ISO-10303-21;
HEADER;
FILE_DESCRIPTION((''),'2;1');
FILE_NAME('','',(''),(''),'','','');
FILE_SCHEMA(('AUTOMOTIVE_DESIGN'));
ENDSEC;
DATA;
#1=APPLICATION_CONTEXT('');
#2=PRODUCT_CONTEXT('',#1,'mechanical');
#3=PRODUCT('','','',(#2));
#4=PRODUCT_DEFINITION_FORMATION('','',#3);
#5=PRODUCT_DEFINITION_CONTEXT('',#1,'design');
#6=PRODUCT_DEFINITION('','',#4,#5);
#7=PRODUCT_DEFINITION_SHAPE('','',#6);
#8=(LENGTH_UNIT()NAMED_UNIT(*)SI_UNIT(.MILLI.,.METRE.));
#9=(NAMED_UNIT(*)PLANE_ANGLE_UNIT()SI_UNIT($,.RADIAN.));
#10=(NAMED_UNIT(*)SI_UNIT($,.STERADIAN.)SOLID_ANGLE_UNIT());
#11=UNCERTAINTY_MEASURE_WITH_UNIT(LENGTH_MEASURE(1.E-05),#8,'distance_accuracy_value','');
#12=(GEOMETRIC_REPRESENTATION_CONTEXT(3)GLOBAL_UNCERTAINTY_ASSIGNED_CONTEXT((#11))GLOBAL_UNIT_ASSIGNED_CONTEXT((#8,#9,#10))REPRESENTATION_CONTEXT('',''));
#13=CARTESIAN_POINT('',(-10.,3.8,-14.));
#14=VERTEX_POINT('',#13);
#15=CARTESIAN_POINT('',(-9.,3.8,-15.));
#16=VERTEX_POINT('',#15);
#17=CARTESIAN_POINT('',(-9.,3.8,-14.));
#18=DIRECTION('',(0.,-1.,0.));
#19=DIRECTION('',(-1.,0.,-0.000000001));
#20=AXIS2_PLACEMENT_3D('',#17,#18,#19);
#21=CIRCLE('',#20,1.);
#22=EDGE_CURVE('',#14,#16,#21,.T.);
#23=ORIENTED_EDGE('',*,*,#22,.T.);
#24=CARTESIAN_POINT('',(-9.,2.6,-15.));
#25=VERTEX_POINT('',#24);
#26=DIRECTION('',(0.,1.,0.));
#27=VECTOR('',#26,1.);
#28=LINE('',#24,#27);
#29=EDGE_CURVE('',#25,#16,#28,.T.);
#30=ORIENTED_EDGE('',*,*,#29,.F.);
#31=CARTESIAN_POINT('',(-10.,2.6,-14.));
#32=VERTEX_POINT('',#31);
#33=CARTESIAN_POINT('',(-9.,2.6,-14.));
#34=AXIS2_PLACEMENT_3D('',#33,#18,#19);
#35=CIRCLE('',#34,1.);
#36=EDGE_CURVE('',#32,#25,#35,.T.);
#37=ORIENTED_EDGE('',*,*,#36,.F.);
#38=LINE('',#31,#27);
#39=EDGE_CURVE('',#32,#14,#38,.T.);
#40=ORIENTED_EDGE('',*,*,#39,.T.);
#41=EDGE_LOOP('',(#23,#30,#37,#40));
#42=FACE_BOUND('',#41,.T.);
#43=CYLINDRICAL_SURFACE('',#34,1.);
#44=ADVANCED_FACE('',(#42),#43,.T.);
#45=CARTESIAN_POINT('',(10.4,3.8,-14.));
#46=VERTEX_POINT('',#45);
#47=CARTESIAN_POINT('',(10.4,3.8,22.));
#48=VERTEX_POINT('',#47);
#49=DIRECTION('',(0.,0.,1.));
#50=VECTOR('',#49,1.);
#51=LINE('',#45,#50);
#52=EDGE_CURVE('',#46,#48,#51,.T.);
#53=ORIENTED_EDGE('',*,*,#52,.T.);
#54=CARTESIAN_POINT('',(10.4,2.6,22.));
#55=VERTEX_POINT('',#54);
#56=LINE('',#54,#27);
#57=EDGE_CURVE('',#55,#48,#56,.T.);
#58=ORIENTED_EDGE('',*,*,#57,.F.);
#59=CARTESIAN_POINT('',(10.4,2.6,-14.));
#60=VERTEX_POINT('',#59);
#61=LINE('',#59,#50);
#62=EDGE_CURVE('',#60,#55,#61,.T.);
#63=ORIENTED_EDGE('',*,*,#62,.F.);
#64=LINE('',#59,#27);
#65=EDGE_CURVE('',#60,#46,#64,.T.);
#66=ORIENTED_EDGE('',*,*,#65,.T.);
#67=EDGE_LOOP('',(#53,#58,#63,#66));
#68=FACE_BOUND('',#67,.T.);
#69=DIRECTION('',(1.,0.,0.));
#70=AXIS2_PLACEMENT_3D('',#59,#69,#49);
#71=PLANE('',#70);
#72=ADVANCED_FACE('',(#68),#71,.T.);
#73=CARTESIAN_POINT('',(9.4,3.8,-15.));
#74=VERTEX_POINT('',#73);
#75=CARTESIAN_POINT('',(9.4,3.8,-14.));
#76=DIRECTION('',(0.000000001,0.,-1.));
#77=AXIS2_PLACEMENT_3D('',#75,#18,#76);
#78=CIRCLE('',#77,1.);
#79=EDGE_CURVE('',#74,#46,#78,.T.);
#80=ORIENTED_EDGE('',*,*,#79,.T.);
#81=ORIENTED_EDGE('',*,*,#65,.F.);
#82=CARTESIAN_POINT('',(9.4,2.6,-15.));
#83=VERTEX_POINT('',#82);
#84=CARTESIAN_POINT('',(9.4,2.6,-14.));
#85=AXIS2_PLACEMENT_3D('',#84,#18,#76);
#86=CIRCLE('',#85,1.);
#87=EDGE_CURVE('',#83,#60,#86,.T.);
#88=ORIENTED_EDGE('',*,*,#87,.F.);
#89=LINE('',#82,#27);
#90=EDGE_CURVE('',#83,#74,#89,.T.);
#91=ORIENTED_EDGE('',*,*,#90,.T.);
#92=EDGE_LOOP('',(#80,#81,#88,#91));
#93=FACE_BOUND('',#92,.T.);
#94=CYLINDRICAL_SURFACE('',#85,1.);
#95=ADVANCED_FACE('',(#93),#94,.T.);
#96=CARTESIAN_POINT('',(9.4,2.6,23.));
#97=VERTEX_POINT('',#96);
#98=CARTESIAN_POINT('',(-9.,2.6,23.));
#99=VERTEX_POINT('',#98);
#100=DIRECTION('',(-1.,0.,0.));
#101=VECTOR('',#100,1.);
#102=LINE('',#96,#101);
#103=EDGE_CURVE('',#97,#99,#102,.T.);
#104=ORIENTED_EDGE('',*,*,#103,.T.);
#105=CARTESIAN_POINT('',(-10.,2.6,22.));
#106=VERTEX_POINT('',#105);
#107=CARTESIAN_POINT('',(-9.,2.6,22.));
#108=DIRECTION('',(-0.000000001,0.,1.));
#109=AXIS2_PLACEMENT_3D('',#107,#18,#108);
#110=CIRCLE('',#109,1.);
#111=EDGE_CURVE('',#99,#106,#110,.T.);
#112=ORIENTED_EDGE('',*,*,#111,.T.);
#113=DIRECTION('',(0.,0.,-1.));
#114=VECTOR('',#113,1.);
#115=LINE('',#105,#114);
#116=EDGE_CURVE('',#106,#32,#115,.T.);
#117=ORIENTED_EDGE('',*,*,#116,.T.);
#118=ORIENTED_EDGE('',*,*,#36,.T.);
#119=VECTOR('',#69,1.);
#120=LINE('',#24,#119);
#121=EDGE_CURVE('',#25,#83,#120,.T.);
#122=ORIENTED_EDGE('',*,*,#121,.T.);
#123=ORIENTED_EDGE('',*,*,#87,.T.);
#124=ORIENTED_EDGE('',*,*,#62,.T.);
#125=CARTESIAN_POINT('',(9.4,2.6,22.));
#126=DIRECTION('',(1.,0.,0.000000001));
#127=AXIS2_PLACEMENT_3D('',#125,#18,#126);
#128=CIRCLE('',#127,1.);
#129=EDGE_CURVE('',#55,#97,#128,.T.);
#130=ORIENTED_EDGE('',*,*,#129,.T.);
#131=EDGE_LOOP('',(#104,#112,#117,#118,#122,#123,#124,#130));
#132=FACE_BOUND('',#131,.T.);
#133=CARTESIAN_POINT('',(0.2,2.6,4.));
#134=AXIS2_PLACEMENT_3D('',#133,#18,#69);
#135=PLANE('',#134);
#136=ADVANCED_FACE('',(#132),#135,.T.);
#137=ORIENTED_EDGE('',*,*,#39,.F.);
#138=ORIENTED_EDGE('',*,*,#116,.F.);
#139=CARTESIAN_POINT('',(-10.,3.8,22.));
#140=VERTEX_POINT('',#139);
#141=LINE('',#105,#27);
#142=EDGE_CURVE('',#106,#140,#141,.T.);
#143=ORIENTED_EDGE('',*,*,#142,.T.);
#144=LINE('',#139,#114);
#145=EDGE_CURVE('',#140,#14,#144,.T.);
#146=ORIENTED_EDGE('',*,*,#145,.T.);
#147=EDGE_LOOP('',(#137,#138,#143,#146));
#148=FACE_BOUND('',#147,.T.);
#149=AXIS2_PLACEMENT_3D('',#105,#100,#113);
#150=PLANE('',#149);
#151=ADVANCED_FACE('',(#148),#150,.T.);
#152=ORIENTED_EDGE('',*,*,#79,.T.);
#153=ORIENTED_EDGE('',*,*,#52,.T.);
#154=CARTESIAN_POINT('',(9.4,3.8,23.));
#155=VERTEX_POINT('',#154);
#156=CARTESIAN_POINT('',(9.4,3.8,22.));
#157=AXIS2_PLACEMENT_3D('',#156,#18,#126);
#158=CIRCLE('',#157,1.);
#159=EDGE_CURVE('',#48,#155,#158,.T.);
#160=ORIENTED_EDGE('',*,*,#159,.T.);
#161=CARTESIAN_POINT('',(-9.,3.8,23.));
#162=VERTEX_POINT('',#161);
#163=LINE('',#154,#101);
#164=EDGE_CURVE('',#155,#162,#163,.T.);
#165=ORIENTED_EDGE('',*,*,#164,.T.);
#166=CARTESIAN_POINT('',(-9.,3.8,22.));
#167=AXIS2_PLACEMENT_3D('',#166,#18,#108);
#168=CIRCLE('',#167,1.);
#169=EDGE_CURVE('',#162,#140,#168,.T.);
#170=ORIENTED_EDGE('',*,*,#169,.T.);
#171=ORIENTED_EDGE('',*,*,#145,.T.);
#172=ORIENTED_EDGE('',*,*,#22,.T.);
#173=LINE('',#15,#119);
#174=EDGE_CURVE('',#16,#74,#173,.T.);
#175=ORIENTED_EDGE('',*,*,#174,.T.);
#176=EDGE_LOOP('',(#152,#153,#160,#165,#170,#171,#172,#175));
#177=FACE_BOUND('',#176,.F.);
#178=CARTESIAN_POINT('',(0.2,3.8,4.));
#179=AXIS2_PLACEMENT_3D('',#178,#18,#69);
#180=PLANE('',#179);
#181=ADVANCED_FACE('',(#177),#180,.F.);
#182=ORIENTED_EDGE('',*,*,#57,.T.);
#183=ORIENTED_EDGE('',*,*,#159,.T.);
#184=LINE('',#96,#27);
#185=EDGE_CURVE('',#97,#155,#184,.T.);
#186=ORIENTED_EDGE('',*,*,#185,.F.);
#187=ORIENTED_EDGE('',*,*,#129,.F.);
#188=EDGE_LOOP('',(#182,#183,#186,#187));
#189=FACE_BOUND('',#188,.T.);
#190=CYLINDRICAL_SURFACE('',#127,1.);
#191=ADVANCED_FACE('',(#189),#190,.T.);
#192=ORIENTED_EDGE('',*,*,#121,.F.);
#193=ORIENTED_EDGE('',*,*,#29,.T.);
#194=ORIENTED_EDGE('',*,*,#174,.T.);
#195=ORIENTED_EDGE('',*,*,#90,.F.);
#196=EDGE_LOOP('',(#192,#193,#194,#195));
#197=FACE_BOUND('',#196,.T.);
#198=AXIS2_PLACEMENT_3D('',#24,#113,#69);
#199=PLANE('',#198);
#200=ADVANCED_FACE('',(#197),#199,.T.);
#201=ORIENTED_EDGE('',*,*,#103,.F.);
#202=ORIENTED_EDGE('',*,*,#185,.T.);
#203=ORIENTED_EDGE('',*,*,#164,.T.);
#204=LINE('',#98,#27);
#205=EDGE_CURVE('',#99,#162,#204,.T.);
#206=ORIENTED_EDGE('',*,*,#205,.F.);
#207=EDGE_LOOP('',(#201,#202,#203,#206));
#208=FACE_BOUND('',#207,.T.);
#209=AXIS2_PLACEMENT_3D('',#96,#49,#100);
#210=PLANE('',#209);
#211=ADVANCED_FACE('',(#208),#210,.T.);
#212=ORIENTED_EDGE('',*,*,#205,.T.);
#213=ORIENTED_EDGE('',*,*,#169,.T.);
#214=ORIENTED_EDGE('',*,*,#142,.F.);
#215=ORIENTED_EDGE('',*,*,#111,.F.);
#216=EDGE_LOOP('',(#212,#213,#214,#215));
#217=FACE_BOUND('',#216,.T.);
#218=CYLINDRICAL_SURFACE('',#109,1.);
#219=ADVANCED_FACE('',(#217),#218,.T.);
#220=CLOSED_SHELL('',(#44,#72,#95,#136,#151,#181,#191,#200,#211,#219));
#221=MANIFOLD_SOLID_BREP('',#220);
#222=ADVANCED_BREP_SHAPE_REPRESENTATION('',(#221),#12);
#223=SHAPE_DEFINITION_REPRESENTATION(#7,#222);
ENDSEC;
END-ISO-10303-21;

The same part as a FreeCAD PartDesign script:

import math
import FreeCAD as App
import Part
import Sketcher
from FreeCAD import Vector
Q = App.Units.Quantity

doc = App.newDocument("Part")
body = doc.addObject("PartDesign::Body", "Body")

sketch1 = body.newObject("Sketcher::SketchObject", "Sketch")
sketch1.AttachmentSupport = (doc.getObject("XZ_Plane"), [""])
sketch1.MapMode = "FlatFace"
sketch1.AttachmentOffset = App.Placement(Vector(0, 0, -2.6), App.Rotation())
sketch1.addGeometry([
    Part.LineSegment(Vector(10.4, -14, 0), Vector(10.4, 22, 0)),
    Part.ArcOfCircle(Part.Circle(Vector(9.4, 22, 0), Vector(0, 0, 1), 1), math.radians(0), math.radians(90)),
    Part.LineSegment(Vector(9.4, 23, 0), Vector(-9, 23, 0)),
    Part.ArcOfCircle(Part.Circle(Vector(-9, 22, 0), Vector(0, 0, 1), 1), math.radians(90), math.radians(180)),
    Part.LineSegment(Vector(-10, 22, 0), Vector(-10, -14, 0)),
    Part.ArcOfCircle(Part.Circle(Vector(-9, -14, 0), Vector(0, 0, 1), 1), math.radians(-180), math.radians(-90)),
    Part.LineSegment(Vector(-9, -15, 0), Vector(9.4, -15, 0)),
    Part.ArcOfCircle(Part.Circle(Vector(9.4, -14, 0), Vector(0, 0, 1), 1), math.radians(-90), math.radians(0)),
], False)
sketch1.addConstraint([
    Sketcher.Constraint("Tangent", 0, 2, 1, 1),
    Sketcher.Constraint("Tangent", 1, 2, 2, 1),
    Sketcher.Constraint("Tangent", 2, 2, 3, 1),
    Sketcher.Constraint("Tangent", 3, 2, 4, 1),
    Sketcher.Constraint("Tangent", 4, 2, 5, 1),
    Sketcher.Constraint("Tangent", 5, 2, 6, 1),
    Sketcher.Constraint("Tangent", 6, 2, 7, 1),
    Sketcher.Constraint("Tangent", 7, 2, 0, 1),
    Sketcher.Constraint("Vertical", 0),
    Sketcher.Constraint("Horizontal", 2),
    Sketcher.Constraint("Vertical", 4),
    Sketcher.Constraint("Horizontal", 6),
    Sketcher.Constraint("Equal", 1, 3),
    Sketcher.Constraint("Equal", 3, 5),
    Sketcher.Constraint("Equal", 5, 7),
    Sketcher.Constraint("Radius", 1, Q("1 mm")),
    Sketcher.Constraint("DistanceY", 0, 1, 0, 2, Q("36 mm")),
    Sketcher.Constraint("DistanceX", 2, 2, 2, 1, Q("18.4 mm")),
    Sketcher.Constraint("DistanceY", -1, 1, 1, 3, Q("22 mm")),
    Sketcher.Constraint("DistanceX", 3, 3, -1, 1, Q("9 mm")),
])
pad1 = body.newObject("PartDesign::Pad", "Pad")
pad1.Profile = sketch1
pad1.Length = 1.2
pad1.Reversed = True

doc.recompute()
